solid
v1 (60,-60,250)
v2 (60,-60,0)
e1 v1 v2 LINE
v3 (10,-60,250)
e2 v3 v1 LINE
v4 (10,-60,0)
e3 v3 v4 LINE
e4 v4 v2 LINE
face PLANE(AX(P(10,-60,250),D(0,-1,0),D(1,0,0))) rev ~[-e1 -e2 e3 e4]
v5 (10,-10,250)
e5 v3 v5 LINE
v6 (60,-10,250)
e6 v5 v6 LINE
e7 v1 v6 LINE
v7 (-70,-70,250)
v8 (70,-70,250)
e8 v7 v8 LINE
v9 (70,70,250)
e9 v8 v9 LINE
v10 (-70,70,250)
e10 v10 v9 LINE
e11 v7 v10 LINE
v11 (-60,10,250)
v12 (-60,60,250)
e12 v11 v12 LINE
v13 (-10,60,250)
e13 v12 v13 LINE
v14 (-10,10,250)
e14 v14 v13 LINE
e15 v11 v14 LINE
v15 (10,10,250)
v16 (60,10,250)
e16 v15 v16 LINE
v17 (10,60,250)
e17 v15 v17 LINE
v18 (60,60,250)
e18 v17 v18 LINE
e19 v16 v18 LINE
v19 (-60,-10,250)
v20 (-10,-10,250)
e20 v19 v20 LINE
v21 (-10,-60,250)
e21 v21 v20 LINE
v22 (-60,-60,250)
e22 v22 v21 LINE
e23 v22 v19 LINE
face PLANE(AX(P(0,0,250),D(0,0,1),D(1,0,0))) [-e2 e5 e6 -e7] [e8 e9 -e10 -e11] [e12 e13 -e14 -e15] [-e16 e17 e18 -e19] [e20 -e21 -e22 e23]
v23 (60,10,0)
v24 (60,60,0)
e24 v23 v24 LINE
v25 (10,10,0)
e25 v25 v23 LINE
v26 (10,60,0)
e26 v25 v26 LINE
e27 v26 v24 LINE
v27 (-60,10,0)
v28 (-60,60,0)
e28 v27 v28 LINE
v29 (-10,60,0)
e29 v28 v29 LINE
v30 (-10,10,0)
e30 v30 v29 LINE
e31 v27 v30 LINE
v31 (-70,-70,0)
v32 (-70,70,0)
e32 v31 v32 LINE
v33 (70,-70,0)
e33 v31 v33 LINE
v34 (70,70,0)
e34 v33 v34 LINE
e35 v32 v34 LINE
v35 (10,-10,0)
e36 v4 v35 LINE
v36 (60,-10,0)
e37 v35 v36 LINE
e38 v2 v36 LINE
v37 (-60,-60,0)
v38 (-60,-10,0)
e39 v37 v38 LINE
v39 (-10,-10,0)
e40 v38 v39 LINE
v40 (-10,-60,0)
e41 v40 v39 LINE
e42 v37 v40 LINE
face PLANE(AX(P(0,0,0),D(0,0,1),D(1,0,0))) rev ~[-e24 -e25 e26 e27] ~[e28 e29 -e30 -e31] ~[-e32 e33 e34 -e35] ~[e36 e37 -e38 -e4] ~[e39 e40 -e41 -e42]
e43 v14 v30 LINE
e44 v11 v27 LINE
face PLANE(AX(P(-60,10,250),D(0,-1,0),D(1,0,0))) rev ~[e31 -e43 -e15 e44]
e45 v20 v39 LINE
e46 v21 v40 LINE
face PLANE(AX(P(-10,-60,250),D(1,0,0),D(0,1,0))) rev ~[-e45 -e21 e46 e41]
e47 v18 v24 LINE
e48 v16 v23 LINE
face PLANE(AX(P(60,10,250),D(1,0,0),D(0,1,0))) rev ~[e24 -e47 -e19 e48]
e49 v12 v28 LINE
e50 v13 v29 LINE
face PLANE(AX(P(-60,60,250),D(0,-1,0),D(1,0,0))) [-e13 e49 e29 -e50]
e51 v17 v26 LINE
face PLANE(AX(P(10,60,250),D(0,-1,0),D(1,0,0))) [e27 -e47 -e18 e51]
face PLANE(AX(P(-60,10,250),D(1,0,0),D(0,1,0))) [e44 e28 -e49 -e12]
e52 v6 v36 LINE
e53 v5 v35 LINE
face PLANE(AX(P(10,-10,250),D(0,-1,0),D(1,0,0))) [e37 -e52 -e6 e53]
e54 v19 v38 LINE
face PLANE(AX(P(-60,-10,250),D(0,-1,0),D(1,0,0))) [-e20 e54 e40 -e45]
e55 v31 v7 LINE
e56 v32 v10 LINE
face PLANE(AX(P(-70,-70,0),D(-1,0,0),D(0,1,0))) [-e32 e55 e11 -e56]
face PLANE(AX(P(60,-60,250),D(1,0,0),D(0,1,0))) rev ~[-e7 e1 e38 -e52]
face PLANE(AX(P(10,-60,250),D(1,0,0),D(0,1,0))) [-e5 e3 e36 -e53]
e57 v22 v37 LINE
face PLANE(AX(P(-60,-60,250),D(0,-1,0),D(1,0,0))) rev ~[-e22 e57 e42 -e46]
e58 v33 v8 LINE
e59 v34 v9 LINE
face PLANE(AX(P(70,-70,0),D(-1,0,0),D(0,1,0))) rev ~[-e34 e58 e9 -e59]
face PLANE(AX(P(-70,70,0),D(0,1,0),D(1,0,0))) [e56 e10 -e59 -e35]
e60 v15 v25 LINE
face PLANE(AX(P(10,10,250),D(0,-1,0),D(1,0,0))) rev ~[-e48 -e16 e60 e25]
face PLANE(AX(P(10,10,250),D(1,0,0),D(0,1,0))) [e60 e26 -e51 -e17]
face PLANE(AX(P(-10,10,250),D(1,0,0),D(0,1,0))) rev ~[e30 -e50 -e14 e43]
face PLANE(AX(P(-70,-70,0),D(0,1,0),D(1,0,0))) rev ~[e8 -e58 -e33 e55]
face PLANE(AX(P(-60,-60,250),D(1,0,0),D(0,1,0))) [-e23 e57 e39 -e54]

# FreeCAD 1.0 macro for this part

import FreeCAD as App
import Part
import Sketcher
from FreeCAD import Vector

doc = App.newDocument("Part")
body = doc.addObject("PartDesign::Body", "Body")

# Sketch on XY plane
sketch1 = doc.addObject("Sketcher::SketchObject", "Sketch")
body.addObject(sketch1)
sketch1.AttachmentSupport = (doc.XY_Plane, [""])
sketch1.MapMode = "FlatFace"
sketch1.addGeometry([
    Part.LineSegment(Vector(-70, 70, 0), Vector(-70, -70, 0)),
    Part.LineSegment(Vector(-70, -70, 0), Vector(70, -70, 0)),
    Part.LineSegment(Vector(70, -70, 0), Vector(70, 70, 0)),
    Part.LineSegment(Vector(70, 70, 0), Vector(-70, 70, 0)),
], False)
sketch1.addConstraint([
    Sketcher.Constraint("Coincident", 0, 2, 1, 1),
    Sketcher.Constraint("Coincident", 1, 2, 2, 1),
    Sketcher.Constraint("Coincident", 2, 2, 3, 1),
    Sketcher.Constraint("Coincident", 3, 2, 0, 1),
    Sketcher.Constraint("Vertical", 0),
    Sketcher.Constraint("Horizontal", 1),
    Sketcher.Constraint("Vertical", 2),
    Sketcher.Constraint("Horizontal", 3),
    Sketcher.Constraint("Symmetric", 0, 2, 2, 2, -1, 1),
    Sketcher.Constraint("Equal", 3, 0),
    Sketcher.Constraint("DistanceX", 1, 1, 1, 2, 140.0),
])
pad1 = doc.addObject("PartDesign::Pad", "Pad")
body.addObject(pad1)
pad1.Profile = sketch1
pad1.Length = 250

# Sketch on XY plane
sketch2 = doc.addObject("Sketcher::SketchObject", "Sketch001")
body.addObject(sketch2)
sketch2.AttachmentSupport = (doc.XY_Plane, [""])
sketch2.MapMode = "FlatFace"
sketch2.AttachmentOffset = App.Placement(Vector(0, 0, 250), App.Rotation())
sketch2.addGeometry([
    Part.LineSegment(Vector(-60, 60, 0), Vector(-60, 10, 0)),  # 0
    Part.LineSegment(Vector(-60, 10, 0), Vector(-10, 10, 0)),  # 1
    Part.LineSegment(Vector(-10, 10, 0), Vector(-10, 60, 0)),  # 2
    Part.LineSegment(Vector(-10, 60, 0), Vector(-60, 60, 0)),  # 3
    Part.LineSegment(Vector(10, 60, 0), Vector(10, 10, 0)),  # 4
    Part.LineSegment(Vector(10, 10, 0), Vector(60, 10, 0)),  # 5
    Part.LineSegment(Vector(60, 10, 0), Vector(60, 60, 0)),  # 6
    Part.LineSegment(Vector(60, 60, 0), Vector(10, 60, 0)),  # 7
    Part.LineSegment(Vector(-60, -10, 0), Vector(-60, -60, 0)),  # 8
    Part.LineSegment(Vector(-60, -60, 0), Vector(-10, -60, 0)),  # 9
    Part.LineSegment(Vector(-10, -60, 0), Vector(-10, -10, 0)),  # 10
    Part.LineSegment(Vector(-10, -10, 0), Vector(-60, -10, 0)),  # 11
    Part.LineSegment(Vector(10, -10, 0), Vector(10, -60, 0)),  # 12
    Part.LineSegment(Vector(10, -60, 0), Vector(60, -60, 0)),  # 13
    Part.LineSegment(Vector(60, -60, 0), Vector(60, -10, 0)),  # 14
    Part.LineSegment(Vector(60, -10, 0), Vector(10, -10, 0)),  # 15
], False)
sketch2.addConstraint([
    Sketcher.Constraint("Coincident", 0, 2, 1, 1),
    Sketcher.Constraint("Coincident", 1, 2, 2, 1),
    Sketcher.Constraint("Coincident", 2, 2, 3, 1),
    Sketcher.Constraint("Coincident", 3, 2, 0, 1),
    Sketcher.Constraint("Coincident", 4, 2, 5, 1),
    Sketcher.Constraint("Coincident", 5, 2, 6, 1),
    Sketcher.Constraint("Coincident", 6, 2, 7, 1),
    Sketcher.Constraint("Coincident", 7, 2, 4, 1),
    Sketcher.Constraint("Coincident", 8, 2, 9, 1),
    Sketcher.Constraint("Coincident", 9, 2, 10, 1),
    Sketcher.Constraint("Coincident", 10, 2, 11, 1),
    Sketcher.Constraint("Coincident", 11, 2, 8, 1),
    Sketcher.Constraint("Coincident", 12, 2, 13, 1),
    Sketcher.Constraint("Coincident", 13, 2, 14, 1),
    Sketcher.Constraint("Coincident", 14, 2, 15, 1),
    Sketcher.Constraint("Coincident", 15, 2, 12, 1),
    Sketcher.Constraint("Vertical", 0),
    Sketcher.Constraint("Horizontal", 1),
    Sketcher.Constraint("Vertical", 2),
    Sketcher.Constraint("Horizontal", 3),
    Sketcher.Constraint("Vertical", 4),
    Sketcher.Constraint("Horizontal", 5),
    Sketcher.Constraint("Vertical", 6),
    Sketcher.Constraint("Horizontal", 7),
    Sketcher.Constraint("Vertical", 8),
    Sketcher.Constraint("Horizontal", 9),
    Sketcher.Constraint("Vertical", 10),
    Sketcher.Constraint("Horizontal", 11),
    Sketcher.Constraint("Vertical", 12),
    Sketcher.Constraint("Horizontal", 13),
    Sketcher.Constraint("Vertical", 14),
    Sketcher.Constraint("Horizontal", 15),
    Sketcher.Constraint("Symmetric", 6, 2, 8, 2, -1, 1),
    Sketcher.Constraint("Symmetric", 4, 2, 10, 2, -1, 1),
    Sketcher.Constraint("Symmetric", 2, 2, 12, 2, -1, 1),
    Sketcher.Constraint("Symmetric", 0, 2, 14, 2, -1, 1),
    Sketcher.Constraint("Symmetric", 1, 2, 4, 2, -2),
    Sketcher.Constraint("Symmetric", 3, 2, 6, 2, -2),
    Sketcher.Constraint("Equal", 15, 0),
    Sketcher.Constraint("DistanceX", 1, 1, 1, 2, 50.0),
    Sketcher.Constraint("DistanceX", 0, 2, -1, 1, 60.0),
    Sketcher.Constraint("DistanceY", -1, 1, 0, 2, 10.0),
])
pocket1 = doc.addObject("PartDesign::Pocket", "Pocket")
body.addObject(pocket1)
pocket1.Profile = sketch2
pocket1.Type = "ThroughAll"

doc.recompute()
